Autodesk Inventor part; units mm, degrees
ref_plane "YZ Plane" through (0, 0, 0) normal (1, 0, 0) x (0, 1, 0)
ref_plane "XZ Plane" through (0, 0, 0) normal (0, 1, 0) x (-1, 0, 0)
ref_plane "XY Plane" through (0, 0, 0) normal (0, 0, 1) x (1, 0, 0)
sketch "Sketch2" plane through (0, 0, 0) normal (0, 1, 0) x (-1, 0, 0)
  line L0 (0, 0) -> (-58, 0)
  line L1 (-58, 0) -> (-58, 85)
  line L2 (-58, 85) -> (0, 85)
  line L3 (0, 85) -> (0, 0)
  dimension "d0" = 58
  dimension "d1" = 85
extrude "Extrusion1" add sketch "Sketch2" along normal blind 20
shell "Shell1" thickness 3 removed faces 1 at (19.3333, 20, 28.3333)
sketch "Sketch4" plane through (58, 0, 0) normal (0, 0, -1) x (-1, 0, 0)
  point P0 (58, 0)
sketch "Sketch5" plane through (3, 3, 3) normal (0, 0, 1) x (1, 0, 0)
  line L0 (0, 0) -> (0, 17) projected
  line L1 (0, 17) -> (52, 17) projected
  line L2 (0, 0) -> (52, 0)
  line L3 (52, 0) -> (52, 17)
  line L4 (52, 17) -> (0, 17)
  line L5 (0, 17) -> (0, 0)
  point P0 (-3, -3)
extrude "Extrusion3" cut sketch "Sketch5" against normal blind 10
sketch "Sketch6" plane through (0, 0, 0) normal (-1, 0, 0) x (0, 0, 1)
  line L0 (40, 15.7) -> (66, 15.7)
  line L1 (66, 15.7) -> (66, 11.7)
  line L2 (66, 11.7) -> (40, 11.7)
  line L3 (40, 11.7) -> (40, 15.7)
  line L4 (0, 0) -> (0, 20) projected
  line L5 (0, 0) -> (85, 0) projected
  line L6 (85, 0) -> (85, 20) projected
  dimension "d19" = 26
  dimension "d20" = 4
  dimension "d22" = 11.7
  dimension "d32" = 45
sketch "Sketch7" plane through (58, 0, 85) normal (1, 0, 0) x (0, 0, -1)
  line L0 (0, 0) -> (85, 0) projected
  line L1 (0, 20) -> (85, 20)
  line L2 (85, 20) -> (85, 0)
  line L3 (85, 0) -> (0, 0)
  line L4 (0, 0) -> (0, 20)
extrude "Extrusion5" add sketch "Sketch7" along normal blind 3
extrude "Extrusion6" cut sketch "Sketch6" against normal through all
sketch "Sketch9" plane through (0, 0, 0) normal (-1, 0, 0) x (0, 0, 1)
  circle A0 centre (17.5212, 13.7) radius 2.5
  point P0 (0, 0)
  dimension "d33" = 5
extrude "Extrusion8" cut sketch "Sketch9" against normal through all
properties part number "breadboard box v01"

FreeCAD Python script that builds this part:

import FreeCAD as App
import Part
import Sketcher
from FreeCAD import Vector
Q = App.Units.Quantity


def faces_at(feature, points):
    """Names of the faces that lie closest to the given points."""
    faces = feature.Shape.Faces
    near = lambda p: min(range(len(faces)), key=lambda i: faces[i].distToShape(Part.Vertex(*p))[0])
    return sorted({f"Face{near(p) + 1}" for p in points})

doc = App.newDocument("Part")
body = doc.addObject("PartDesign::Body", "Body")

# Sketch on XZ plane
sketch1 = body.newObject("Sketcher::SketchObject", "Sketch")
sketch1.AttachmentSupport = (doc.getObject("XZ_Plane"), [""])
sketch1.MapMode = "FlatFace"
sketch1.addGeometry(Part.LineSegment(Vector(58, 0, 0), Vector(0, 0, 0)), False)
sketch1.addGeometry(Part.LineSegment(Vector(0, 0, 0), Vector(0, 85, 0)), False)
sketch1.addGeometry(Part.LineSegment(Vector(0, 85, 0), Vector(58, 85, 0)), False)
sketch1.addGeometry(Part.LineSegment(Vector(58, 85, 0), Vector(58, 0, 0)), False)
sketch1.addConstraint(Sketcher.Constraint("Coincident", 0, 2, 1, 1))
sketch1.addConstraint(Sketcher.Constraint("Coincident", 1, 2, 2, 1))
sketch1.addConstraint(Sketcher.Constraint("Coincident", 2, 2, 3, 1))
sketch1.addConstraint(Sketcher.Constraint("Coincident", 3, 2, 0, 1))
sketch1.addConstraint(Sketcher.Constraint("Horizontal", 0))
sketch1.addConstraint(Sketcher.Constraint("Vertical", 1))
sketch1.addConstraint(Sketcher.Constraint("Horizontal", 2))
sketch1.addConstraint(Sketcher.Constraint("Vertical", 3))
sketch1.addConstraint(Sketcher.Constraint("Coincident", 0, 2, -1, 1))
sketch1.addConstraint(Sketcher.Constraint("DistanceX", 0, 2, 0, 1, Q("58 mm")))
sketch1.addConstraint(Sketcher.Constraint("DistanceY", 1, 1, 1, 2, Q("85 mm")))
pad1 = body.newObject("PartDesign::Pad", "Pad")
pad1.Profile = sketch1
pad1.Length = 20
pad1.Reversed = True
doc.recompute()

thickness = body.newObject("PartDesign::Thickness", "Thickness")
thickness.Base = (pad1, faces_at(pad1, [(19.333, 20, 28.333)]))
thickness.Value = 3
thickness.Reversed = True
thickness.Join = "Intersection"

# Sketch on XY plane
sketch2 = body.newObject("Sketcher::SketchObject", "Sketch001")
sketch2.AttachmentSupport = (doc.getObject("XY_Plane"), [""])
sketch2.MapMode = "FlatFace"
sketch2.AttachmentOffset = App.Placement(Vector(0, 0, 3), App.Rotation())
sketch2.addGeometry(Part.LineSegment(Vector(3, 20, 0), Vector(3, 3, 0)), False)
sketch2.addGeometry(Part.LineSegment(Vector(3, 3, 0), Vector(55, 3, 0)), False)
sketch2.addGeometry(Part.LineSegment(Vector(55, 3, 0), Vector(55, 20, 0)), False)
sketch2.addGeometry(Part.LineSegment(Vector(55, 20, 0), Vector(3, 20, 0)), False)
sketch2.addConstraint(Sketcher.Constraint("Coincident", 0, 2, 1, 1))
sketch2.addConstraint(Sketcher.Constraint("Coincident", 1, 2, 2, 1))
sketch2.addConstraint(Sketcher.Constraint("Coincident", 2, 2, 3, 1))
sketch2.addConstraint(Sketcher.Constraint("Coincident", 3, 2, 0, 1))
sketch2.addConstraint(Sketcher.Constraint("Vertical", 0))
sketch2.addConstraint(Sketcher.Constraint("Horizontal", 1))
sketch2.addConstraint(Sketcher.Constraint("Vertical", 2))
sketch2.addConstraint(Sketcher.Constraint("Horizontal", 3))
sketch2.addConstraint(Sketcher.Constraint("DistanceX", 1, 1, 1, 2, Q("52 mm")))
sketch2.addConstraint(Sketcher.Constraint("DistanceY", 0, 2, 0, 1, Q("17 mm")))
sketch2.addConstraint(Sketcher.Constraint("DistanceX", -1, 1, 0, 2, Q("3 mm")))
sketch2.addConstraint(Sketcher.Constraint("DistanceY", -1, 1, 0, 2, Q("3 mm")))
pocket1 = body.newObject("PartDesign::Pocket", "Pocket")
pocket1.Profile = sketch2
pocket1.Length = 10

# Sketch on YZ plane
sketch3 = body.newObject("Sketcher::SketchObject", "Sketch002")
sketch3.AttachmentSupport = (doc.getObject("YZ_Plane"), [""])
sketch3.MapMode = "FlatFace"
sketch3.AttachmentOffset = App.Placement(Vector(0, 0, 58), App.Rotation())
sketch3.addGeometry(Part.LineSegment(Vector(20, 85, 0), Vector(0, 85, 0)), False)
sketch3.addGeometry(Part.LineSegment(Vector(0, 85, 0), Vector(0, 0, 0)), False)
sketch3.addGeometry(Part.LineSegment(Vector(0, 0, 0), Vector(20, 0, 0)), False)
sketch3.addGeometry(Part.LineSegment(Vector(20, 0, 0), Vector(20, 85, 0)), False)
sketch3.addConstraint(Sketcher.Constraint("Coincident", 0, 2, 1, 1))
sketch3.addConstraint(Sketcher.Constraint("Coincident", 1, 2, 2, 1))
sketch3.addConstraint(Sketcher.Constraint("Coincident", 2, 2, 3, 1))
sketch3.addConstraint(Sketcher.Constraint("Coincident", 3, 2, 0, 1))
sketch3.addConstraint(Sketcher.Constraint("Horizontal", 0))
sketch3.addConstraint(Sketcher.Constraint("Vertical", 1))
sketch3.addConstraint(Sketcher.Constraint("Horizontal", 2))
sketch3.addConstraint(Sketcher.Constraint("Vertical", 3))
sketch3.addConstraint(Sketcher.Constraint("Coincident", 1, 2, -1, 1))
sketch3.addConstraint(Sketcher.Constraint("DistanceX", 0, 2, 0, 1, Q("20 mm")))
sketch3.addConstraint(Sketcher.Constraint("DistanceY", 1, 2, 1, 1, Q("85 mm")))
pad2 = body.newObject("PartDesign::Pad", "Pad001")
pad2.Profile = sketch3
pad2.Length = 3

# Sketch on YZ plane
sketch4 = body.newObject("Sketcher::SketchObject", "Sketch003")
sketch4.AttachmentSupport = (doc.getObject("YZ_Plane"), [""])
sketch4.MapMode = "FlatFace"
sketch4.addGeometry(Part.LineSegment(Vector(15.7, 66, 0), Vector(15.7, 40, 0)), False)
sketch4.addGeometry(Part.LineSegment(Vector(15.7, 40, 0), Vector(11.7, 40, 0)), False)
sketch4.addGeometry(Part.LineSegment(Vector(11.7, 40, 0), Vector(11.7, 66, 0)), False)
sketch4.addGeometry(Part.LineSegment(Vector(11.7, 66, 0), Vector(15.7, 66, 0)), False)
sketch4.addConstraint(Sketcher.Constraint("Coincident", 0, 2, 1, 1))
sketch4.addConstraint(Sketcher.Constraint("Coincident", 1, 2, 2, 1))
sketch4.addConstraint(Sketcher.Constraint("Coincident", 2, 2, 3, 1))
sketch4.addConstraint(Sketcher.Constraint("Coincident", 3, 2, 0, 1))
sketch4.addConstraint(Sketcher.Constraint("Vertical", 0))
sketch4.addConstraint(Sketcher.Constraint("Horizontal", 1))
sketch4.addConstraint(Sketcher.Constraint("Vertical", 2))
sketch4.addConstraint(Sketcher.Constraint("Horizontal", 3))
sketch4.addConstraint(Sketcher.Constraint("DistanceX", 1, 2, 1, 1, Q("4 mm")))
sketch4.addConstraint(Sketcher.Constraint("DistanceY", 0, 2, 0, 1, Q("26 mm")))
sketch4.addConstraint(Sketcher.Constraint("DistanceX", -1, 1, 1, 2, Q("11.7 mm")))
sketch4.addConstraint(Sketcher.Constraint("DistanceY", -1, 1, 0, 2, Q("40 mm")))
pocket2 = body.newObject("PartDesign::Pocket", "Pocket001")
pocket2.Profile = sketch4
pocket2.Type = "ThroughAll"
pocket2.Reversed = True

# Sketch on YZ plane
sketch5 = body.newObject("Sketcher::SketchObject", "Sketch004")
sketch5.AttachmentSupport = (doc.getObject("YZ_Plane"), [""])
sketch5.MapMode = "FlatFace"
sketch5.addGeometry(Part.Circle(Vector(13.7, 17.5, 0), Vector(0, 0, 1), 2.5), False)
sketch5.addConstraint(Sketcher.Constraint("Diameter", 0, Q("5 mm")))
sketch5.addConstraint(Sketcher.Constraint("DistanceX", -1, 1, 0, 3, Q("13.7 mm")))
sketch5.addConstraint(Sketcher.Constraint("DistanceY", -1, 1, 0, 3, Q("17.5212 mm")))
pocket3 = body.newObject("PartDesign::Pocket", "Pocket002")
pocket3.Profile = sketch5
pocket3.Type = "ThroughAll"
pocket3.Reversed = True

doc.recompute()
